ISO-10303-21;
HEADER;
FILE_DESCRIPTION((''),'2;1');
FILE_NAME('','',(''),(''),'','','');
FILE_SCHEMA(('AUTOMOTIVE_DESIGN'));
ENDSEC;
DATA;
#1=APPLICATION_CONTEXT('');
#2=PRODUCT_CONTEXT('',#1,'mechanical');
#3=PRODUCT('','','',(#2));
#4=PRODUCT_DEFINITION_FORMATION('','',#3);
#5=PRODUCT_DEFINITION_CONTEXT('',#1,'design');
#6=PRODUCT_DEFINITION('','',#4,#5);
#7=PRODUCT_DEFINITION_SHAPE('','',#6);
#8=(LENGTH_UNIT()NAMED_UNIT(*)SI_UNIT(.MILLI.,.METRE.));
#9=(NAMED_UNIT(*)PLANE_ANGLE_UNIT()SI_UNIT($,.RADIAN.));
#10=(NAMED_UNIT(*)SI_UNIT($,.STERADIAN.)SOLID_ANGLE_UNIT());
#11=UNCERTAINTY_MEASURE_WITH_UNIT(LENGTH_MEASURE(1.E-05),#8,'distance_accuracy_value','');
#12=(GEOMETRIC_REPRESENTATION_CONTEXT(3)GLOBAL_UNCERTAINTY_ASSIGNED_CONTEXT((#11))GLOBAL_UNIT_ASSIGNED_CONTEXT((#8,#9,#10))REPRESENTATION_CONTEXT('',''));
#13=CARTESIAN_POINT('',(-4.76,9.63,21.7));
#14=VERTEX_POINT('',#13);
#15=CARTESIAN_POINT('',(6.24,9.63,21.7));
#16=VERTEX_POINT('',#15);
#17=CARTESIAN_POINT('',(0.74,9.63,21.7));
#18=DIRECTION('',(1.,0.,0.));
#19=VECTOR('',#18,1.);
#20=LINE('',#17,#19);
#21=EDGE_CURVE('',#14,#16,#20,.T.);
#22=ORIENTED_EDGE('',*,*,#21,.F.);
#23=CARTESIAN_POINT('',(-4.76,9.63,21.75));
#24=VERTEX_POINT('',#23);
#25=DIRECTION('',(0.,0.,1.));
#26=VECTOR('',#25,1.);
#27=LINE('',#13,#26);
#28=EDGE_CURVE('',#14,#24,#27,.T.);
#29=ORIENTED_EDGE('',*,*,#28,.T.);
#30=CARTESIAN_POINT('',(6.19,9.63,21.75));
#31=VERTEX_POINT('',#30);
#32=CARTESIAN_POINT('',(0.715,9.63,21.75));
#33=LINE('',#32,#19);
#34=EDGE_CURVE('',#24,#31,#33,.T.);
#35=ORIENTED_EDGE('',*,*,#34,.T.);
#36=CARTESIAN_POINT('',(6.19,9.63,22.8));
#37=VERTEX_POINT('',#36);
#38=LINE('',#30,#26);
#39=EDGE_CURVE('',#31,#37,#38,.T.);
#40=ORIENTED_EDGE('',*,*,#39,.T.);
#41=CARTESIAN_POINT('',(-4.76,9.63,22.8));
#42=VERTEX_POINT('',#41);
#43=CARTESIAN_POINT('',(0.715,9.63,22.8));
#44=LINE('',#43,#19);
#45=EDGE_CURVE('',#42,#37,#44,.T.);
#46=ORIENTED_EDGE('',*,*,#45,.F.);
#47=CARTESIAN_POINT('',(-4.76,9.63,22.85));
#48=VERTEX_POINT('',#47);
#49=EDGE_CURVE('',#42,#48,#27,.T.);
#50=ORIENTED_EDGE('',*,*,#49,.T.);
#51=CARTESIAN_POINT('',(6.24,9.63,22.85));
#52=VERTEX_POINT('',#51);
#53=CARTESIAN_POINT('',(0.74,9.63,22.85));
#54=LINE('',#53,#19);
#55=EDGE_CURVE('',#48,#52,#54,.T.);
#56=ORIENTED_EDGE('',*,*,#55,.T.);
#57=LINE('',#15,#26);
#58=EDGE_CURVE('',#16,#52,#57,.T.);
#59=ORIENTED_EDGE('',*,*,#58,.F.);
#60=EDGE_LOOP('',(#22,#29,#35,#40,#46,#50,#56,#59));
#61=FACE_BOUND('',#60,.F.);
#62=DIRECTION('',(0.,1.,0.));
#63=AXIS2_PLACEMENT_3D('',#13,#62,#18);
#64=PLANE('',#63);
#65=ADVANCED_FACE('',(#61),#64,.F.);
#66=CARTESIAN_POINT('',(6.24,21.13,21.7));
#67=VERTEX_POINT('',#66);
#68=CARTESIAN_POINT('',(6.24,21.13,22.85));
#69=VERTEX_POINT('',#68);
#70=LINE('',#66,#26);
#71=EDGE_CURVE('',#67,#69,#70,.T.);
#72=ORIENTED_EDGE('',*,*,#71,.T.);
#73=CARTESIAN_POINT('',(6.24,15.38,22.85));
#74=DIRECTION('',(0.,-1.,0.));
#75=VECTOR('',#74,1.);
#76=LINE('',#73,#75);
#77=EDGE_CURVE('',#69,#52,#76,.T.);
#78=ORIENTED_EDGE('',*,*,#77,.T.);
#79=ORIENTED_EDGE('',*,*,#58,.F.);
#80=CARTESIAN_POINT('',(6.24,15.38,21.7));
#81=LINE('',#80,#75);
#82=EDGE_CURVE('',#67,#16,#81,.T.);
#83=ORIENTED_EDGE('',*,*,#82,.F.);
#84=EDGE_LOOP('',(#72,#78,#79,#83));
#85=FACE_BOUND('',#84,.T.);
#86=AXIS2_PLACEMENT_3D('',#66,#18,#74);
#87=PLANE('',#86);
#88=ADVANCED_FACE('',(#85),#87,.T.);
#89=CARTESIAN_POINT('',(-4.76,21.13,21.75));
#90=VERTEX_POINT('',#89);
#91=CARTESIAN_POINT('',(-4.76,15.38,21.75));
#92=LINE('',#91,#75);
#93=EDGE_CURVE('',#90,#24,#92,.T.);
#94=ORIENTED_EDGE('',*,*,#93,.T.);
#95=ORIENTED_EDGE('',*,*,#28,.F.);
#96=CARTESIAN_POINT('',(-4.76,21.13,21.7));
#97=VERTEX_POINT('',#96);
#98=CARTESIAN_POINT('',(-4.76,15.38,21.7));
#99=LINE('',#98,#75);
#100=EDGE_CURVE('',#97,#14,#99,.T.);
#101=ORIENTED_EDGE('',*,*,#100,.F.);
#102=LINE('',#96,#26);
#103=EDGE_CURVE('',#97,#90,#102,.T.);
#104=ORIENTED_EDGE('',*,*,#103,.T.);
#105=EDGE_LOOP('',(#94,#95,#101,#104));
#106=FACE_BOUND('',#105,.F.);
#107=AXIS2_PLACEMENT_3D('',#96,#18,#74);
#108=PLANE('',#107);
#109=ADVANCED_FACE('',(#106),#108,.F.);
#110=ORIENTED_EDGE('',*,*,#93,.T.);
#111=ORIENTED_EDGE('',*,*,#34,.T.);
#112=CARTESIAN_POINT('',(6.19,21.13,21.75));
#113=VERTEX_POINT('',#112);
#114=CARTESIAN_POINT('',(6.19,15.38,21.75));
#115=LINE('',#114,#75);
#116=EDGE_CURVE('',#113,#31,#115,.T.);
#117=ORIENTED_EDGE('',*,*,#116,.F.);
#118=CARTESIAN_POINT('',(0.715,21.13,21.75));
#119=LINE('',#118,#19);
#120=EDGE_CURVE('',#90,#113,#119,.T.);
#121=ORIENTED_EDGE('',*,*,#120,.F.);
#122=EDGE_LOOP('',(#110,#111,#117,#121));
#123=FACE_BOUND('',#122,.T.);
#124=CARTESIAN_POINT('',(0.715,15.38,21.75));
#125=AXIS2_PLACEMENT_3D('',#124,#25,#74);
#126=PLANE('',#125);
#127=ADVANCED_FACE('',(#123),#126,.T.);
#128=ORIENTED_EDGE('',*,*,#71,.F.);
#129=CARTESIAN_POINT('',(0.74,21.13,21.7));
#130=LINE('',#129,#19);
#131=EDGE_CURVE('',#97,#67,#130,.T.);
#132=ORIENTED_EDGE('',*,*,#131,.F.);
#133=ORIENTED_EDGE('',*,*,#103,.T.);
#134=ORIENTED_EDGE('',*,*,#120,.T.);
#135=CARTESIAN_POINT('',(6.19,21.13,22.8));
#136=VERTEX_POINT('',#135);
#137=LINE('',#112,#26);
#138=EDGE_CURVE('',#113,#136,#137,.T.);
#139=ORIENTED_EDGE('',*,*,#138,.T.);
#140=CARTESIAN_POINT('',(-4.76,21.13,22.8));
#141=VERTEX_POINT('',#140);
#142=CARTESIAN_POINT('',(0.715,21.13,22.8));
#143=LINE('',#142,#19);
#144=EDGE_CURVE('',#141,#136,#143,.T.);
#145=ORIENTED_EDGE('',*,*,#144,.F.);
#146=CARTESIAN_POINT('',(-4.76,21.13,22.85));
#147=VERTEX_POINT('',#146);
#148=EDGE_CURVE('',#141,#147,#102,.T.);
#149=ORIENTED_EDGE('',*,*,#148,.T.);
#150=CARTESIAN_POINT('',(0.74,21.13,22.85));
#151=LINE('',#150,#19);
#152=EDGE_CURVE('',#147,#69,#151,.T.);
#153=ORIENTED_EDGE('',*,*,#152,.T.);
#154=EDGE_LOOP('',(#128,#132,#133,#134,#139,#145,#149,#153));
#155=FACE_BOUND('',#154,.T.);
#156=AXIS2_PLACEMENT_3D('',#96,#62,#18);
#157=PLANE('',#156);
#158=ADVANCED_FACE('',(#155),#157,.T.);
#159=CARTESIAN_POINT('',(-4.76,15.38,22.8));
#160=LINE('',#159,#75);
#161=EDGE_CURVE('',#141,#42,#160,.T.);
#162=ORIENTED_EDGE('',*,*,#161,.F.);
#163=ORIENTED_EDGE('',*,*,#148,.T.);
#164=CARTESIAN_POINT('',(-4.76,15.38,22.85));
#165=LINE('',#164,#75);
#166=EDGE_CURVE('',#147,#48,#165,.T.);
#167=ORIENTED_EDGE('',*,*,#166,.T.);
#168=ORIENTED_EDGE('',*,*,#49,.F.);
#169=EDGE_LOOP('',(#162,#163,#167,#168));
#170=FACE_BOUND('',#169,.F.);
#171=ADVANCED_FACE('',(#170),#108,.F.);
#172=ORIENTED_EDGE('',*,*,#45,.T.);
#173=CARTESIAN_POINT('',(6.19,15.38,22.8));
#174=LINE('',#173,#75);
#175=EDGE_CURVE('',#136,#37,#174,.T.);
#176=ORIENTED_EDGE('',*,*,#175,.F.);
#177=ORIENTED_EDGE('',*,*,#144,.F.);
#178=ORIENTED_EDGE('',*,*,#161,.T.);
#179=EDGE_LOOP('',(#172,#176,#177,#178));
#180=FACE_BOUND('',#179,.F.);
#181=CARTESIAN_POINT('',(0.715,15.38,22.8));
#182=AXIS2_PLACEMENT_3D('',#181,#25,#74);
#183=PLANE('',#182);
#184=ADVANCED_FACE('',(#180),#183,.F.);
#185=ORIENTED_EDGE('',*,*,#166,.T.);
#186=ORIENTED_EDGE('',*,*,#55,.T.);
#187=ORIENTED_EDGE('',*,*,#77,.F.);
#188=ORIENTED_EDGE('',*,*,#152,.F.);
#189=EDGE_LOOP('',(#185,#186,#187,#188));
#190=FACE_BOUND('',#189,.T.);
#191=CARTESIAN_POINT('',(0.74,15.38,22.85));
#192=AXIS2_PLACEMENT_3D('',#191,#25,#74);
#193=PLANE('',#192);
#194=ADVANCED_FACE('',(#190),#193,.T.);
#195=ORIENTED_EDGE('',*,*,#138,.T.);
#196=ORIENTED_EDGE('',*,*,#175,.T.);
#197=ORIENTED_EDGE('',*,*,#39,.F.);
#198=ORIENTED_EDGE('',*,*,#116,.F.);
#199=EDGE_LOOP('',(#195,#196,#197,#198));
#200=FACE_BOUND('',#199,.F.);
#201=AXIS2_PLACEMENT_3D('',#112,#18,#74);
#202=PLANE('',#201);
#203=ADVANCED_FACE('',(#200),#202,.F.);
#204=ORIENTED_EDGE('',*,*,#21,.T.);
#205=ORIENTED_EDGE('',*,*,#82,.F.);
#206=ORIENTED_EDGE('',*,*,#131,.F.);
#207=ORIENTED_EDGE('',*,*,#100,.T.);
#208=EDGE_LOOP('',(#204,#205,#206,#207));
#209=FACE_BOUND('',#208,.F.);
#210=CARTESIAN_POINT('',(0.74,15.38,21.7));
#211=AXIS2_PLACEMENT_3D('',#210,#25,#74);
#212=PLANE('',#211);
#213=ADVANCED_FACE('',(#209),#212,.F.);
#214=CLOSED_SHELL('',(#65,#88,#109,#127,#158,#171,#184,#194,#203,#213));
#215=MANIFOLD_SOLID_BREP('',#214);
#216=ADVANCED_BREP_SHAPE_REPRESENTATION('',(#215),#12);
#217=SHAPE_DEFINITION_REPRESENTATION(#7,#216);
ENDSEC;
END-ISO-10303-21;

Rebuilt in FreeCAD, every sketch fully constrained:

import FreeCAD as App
import Part
import Sketcher
from FreeCAD import Vector


def add_polygon(sketch, points):
    """Adds a closed chain of lines whose ends are joined by coincident constraints."""
    first, n = sketch.GeometryCount, len(points)
    for a, b in zip(points, points[1:] + points[:1]):
        sketch.addGeometry(Part.LineSegment(App.Vector(*a, 0), App.Vector(*b, 0)), False)
    for i in range(n):
        sketch.addConstraint(Sketcher.Constraint("Coincident", first + i, 2, first + (i + 1) % n, 1))

doc = App.newDocument("Part")
body = doc.addObject("PartDesign::Body", "Body")

sketch1 = doc.addObject("Sketcher::SketchObject", "Sketch")
body.addObject(sketch1)
sketch1.AttachmentSupport = (doc.XY_Plane, [""])
sketch1.MapMode = "FlatFace"
sketch1.AttachmentOffset = App.Placement(Vector(0, 0, 0.05), App.Rotation())
add_polygon(sketch1, [(0, 11), (0, 0), (12, 0), (12, 11)])
sketch1.addConstraint([
    Sketcher.Constraint("Vertical", 0),
    Sketcher.Constraint("Horizontal", 1),
    Sketcher.Constraint("Vertical", 2),
    Sketcher.Constraint("Horizontal", 3),
    Sketcher.Constraint("Coincident", 0, 2, -1, 1),
    Sketcher.Constraint("DistanceX", 1, 1, 1, 2, 11.5),
    Sketcher.Constraint("DistanceY", 0, 2, 0, 1, 10.95),
])
pad1 = doc.addObject("PartDesign::Pad", "Pad")
body.addObject(pad1)
pad1.Profile = sketch1
pad1.Length = 1.05
body2 = doc.addObject("PartDesign::Body", "Body001")

sketch2 = doc.addObject("Sketcher::SketchObject", "Sketch001")
body2.addObject(sketch2)
sketch2.AttachmentSupport = (doc.getObject("XY_Plane001"), [""])
sketch2.MapMode = "FlatFace"
add_polygon(sketch2, [(0, 11), (0, 0), (12, 0), (12, 11)])
sketch2.addConstraint([
    Sketcher.Constraint("Vertical", 0),
    Sketcher.Constraint("Horizontal", 1),
    Sketcher.Constraint("Vertical", 2),
    Sketcher.Constraint("Horizontal", 3),
    Sketcher.Constraint("Coincident", 0, 2, -1, 1),
    Sketcher.Constraint("DistanceY", 0, 2, 0, 1, 11.0),
    Sketcher.Constraint("DistanceX", 1, 1, 1, 2, 11.5),
])
pad2 = doc.addObject("PartDesign::Pad", "Pad001")
body2.addObject(pad2)
pad2.Profile = sketch2
pad2.Length = 1.15
doc.recompute()

boolean = doc.addObject("PartDesign::Boolean", "Boolean")
body2.addObject(boolean)
boolean.Type = "Cut"
boolean.addObjects([body])
body3 = doc.addObject("PartDesign::Body", "Body002")
doc.recompute()

body2.Placement = App.Placement(Vector(-4.76, 21.13, 21.7), App.Rotation(Vector(0, 0, 1), 270))
boolean2 = doc.addObject("PartDesign::Boolean", "Boolean001")
body3.addObject(boolean2)
boolean2.Type = "Fuse"
boolean2.addObjects([body2])

doc.recompute()
